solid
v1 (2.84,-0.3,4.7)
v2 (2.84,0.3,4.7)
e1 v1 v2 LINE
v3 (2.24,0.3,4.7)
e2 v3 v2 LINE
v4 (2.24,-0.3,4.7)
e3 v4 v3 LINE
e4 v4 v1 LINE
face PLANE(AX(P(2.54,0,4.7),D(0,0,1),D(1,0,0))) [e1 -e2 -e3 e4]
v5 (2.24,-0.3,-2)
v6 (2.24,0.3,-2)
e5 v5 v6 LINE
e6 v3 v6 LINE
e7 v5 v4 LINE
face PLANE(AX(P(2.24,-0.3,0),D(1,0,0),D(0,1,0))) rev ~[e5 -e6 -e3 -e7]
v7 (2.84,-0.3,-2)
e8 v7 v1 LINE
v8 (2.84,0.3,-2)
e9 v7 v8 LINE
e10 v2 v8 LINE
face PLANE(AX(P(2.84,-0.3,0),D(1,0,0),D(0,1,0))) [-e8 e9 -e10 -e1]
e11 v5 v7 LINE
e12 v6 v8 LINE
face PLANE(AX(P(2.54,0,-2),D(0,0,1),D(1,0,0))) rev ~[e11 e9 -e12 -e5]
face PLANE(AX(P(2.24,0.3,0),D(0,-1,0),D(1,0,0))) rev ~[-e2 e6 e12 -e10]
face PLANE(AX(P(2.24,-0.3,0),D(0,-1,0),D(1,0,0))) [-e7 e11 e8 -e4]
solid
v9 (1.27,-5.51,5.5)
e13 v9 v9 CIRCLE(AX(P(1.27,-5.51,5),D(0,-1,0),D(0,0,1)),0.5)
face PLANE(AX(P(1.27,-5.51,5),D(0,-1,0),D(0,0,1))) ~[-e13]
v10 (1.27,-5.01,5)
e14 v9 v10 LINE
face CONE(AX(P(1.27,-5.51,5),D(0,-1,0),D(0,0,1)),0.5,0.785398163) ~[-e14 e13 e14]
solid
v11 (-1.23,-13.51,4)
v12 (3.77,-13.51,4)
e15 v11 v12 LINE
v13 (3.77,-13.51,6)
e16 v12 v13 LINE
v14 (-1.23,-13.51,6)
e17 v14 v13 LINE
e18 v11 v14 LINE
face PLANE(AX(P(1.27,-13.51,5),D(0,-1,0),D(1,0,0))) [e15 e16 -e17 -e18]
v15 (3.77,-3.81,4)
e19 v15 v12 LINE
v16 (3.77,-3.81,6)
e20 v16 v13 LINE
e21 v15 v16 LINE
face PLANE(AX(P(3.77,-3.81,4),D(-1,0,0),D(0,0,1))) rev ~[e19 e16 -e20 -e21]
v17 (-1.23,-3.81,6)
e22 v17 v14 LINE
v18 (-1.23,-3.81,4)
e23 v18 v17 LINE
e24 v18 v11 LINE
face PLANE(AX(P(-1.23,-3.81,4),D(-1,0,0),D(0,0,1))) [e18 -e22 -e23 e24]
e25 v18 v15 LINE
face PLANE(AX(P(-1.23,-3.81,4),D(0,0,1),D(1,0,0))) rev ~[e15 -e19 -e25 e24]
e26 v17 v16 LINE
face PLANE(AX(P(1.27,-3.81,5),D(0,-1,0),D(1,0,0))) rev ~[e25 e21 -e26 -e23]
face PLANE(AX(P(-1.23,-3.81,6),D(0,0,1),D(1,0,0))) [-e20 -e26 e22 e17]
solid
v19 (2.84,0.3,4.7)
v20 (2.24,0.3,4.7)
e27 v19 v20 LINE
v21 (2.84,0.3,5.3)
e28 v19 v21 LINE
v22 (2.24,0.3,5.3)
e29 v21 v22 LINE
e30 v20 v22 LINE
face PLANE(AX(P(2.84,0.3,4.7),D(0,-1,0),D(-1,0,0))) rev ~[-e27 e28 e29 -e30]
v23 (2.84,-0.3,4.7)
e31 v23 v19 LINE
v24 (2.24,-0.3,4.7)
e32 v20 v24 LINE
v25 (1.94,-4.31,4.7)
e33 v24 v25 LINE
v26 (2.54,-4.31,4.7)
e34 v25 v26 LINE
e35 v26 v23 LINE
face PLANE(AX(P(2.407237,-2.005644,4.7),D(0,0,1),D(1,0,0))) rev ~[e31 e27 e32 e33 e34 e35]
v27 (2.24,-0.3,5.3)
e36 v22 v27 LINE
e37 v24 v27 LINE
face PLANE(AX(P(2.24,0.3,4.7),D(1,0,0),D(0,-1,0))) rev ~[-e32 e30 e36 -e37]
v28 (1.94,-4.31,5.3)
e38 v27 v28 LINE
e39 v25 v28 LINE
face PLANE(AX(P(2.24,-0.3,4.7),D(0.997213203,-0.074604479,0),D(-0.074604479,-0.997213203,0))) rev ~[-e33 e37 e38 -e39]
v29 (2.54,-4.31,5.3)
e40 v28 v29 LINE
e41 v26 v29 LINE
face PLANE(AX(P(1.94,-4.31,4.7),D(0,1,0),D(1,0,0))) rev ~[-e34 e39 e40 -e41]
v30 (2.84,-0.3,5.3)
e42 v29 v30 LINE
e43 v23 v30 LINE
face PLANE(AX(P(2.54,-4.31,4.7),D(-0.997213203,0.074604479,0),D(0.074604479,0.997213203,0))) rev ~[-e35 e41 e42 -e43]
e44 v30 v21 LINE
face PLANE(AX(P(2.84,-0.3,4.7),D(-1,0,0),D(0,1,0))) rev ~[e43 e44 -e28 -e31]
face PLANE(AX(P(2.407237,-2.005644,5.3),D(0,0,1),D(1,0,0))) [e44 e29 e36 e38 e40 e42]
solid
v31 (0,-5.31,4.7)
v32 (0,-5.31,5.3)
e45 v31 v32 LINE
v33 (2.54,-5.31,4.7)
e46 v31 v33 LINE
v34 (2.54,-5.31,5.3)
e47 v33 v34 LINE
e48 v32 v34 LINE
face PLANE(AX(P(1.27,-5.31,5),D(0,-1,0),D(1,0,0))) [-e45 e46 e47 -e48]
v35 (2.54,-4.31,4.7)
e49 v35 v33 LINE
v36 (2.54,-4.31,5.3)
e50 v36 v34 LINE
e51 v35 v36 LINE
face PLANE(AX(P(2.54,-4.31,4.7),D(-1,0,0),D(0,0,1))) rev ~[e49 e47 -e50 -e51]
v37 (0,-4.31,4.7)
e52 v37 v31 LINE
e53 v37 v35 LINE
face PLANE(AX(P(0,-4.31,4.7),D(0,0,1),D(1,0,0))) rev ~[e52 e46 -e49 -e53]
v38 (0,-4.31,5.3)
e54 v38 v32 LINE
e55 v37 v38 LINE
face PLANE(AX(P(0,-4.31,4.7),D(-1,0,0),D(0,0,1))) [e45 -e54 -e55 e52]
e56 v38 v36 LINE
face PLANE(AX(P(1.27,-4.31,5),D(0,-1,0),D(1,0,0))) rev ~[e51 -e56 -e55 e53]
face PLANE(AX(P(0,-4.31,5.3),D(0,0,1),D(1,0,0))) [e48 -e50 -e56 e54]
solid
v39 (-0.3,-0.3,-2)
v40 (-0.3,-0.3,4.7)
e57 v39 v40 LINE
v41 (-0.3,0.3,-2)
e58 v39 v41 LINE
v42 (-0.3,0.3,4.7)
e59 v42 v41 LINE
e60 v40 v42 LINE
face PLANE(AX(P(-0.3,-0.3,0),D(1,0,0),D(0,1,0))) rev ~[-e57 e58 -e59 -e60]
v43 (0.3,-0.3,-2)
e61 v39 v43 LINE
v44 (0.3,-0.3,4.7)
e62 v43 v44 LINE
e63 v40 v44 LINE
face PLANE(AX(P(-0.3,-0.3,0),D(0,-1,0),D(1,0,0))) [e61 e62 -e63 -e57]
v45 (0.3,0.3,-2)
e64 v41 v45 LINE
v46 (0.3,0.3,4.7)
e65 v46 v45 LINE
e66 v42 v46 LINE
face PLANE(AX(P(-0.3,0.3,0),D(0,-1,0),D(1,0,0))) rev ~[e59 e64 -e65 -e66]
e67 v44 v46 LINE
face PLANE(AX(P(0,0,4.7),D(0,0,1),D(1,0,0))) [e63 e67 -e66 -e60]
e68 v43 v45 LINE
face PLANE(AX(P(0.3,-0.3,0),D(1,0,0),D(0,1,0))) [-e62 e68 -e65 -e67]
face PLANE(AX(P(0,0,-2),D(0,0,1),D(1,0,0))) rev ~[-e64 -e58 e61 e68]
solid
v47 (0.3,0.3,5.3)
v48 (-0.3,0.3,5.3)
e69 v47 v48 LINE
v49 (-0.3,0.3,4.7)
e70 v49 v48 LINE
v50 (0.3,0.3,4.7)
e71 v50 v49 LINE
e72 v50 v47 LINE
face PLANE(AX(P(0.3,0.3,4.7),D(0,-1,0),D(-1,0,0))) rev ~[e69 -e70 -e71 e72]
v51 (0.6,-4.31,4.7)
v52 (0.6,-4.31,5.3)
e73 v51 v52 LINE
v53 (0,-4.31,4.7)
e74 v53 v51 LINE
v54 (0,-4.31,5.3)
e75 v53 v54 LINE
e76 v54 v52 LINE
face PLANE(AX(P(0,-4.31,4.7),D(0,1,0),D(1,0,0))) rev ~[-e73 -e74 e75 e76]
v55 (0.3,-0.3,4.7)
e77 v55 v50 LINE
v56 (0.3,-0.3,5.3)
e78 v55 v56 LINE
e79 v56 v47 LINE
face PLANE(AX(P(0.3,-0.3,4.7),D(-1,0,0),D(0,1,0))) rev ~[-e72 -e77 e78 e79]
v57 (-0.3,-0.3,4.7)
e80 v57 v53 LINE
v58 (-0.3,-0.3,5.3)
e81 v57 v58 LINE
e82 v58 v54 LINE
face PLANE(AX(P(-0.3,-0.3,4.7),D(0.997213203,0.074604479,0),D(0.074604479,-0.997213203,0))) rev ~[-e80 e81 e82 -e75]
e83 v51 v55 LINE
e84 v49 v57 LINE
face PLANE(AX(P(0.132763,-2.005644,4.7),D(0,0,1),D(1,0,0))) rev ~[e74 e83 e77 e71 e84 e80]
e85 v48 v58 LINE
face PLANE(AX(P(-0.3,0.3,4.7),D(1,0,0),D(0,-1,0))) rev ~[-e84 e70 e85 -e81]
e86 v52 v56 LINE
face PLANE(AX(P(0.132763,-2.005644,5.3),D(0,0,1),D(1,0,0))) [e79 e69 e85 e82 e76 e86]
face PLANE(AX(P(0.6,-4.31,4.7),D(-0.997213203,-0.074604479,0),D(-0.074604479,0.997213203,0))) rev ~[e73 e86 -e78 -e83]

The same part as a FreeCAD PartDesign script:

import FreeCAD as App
import Part
import Sketcher

V = App.Vector


def add_polygon(sketch, points):
    """Adds a closed chain of lines whose ends are joined by coincident constraints."""
    first, n = sketch.GeometryCount, len(points)
    for a, b in zip(points, points[1:] + points[:1]):
        sketch.addGeometry(Part.LineSegment(App.Vector(*a, 0), App.Vector(*b, 0)), False)
    for i in range(n):
        sketch.addConstraint(Sketcher.Constraint("Coincident", first + i, 2, first + (i + 1) % n, 1))

doc = App.newDocument("Part")
body = doc.addObject("PartDesign::Body", "Body")
body.AllowCompound = True

sketch1 = body.newObject("Sketcher::SketchObject", "Sketch")
sketch1.AttachmentSupport = (doc.getObject("XY_Plane"), [""])
sketch1.MapMode = "FlatFace"
add_polygon(sketch1, [(-0.3, 0.3), (-0.3, -0.3), (0.3, -0.3), (0.3, 0.3)])
add_polygon(sketch1, [(2.24, 0.3), (2.24, -0.3), (2.84, -0.3), (2.84, 0.3)])
sketch1.addConstraint([
    Sketcher.Constraint("Vertical", 0),
    Sketcher.Constraint("Horizontal", 1),
    Sketcher.Constraint("Vertical", 2),
    Sketcher.Constraint("Horizontal", 3),
    Sketcher.Constraint("Vertical", 4),
    Sketcher.Constraint("Horizontal", 5),
    Sketcher.Constraint("Vertical", 6),
    Sketcher.Constraint("Horizontal", 7),
    Sketcher.Constraint("Symmetric", 0, 2, 2, 2, -1, 1),
    Sketcher.Constraint("Horizontal", 1, 2, 4, 2),
    Sketcher.Constraint("Horizontal", 3, 2, 6, 2),
    Sketcher.Constraint("Equal", 3, 5),
    Sketcher.Constraint("Equal", 7, 0),
    Sketcher.Constraint("DistanceX", 1, 1, 1, 2, 0.6),
    Sketcher.Constraint("DistanceX", -1, 1, 4, 2, 2.24),
])
pad1 = body.newObject("PartDesign::Pad", "Pad")
pad1.Profile = sketch1
pad1.Type = "TwoLengths"
pad1.Length = 4.7
pad1.Length2 = 2
body2 = doc.addObject("PartDesign::Body", "Body001")
body2.AllowCompound = True

sketch2 = body2.newObject("Sketcher::SketchObject", "Sketch001")
sketch2.AttachmentSupport = (doc.getObject("XY_Plane001"), [""])
sketch2.MapMode = "FlatFace"
sketch2.AttachmentOffset = App.Placement(V(0, 0, 4.7), App.Rotation())
add_polygon(sketch2, [(0.3, 0.3), (-0.3, 0.3), (-0.3, -0.3), (0, -4.31), (0.6, -4.31), (0.3, -0.3)])
add_polygon(sketch2, [(2.84, 0.3), (2.24, 0.3), (2.24, -0.3), (1.94, -4.31), (2.54, -4.31), (2.84, -0.3)])
sketch2.addConstraint([
    Sketcher.Constraint("Horizontal", 0),
    Sketcher.Constraint("Vertical", 1),
    Sketcher.Constraint("Horizontal", 3),
    Sketcher.Constraint("Vertical", 5),
    Sketcher.Constraint("Horizontal", 6),
    Sketcher.Constraint("Vertical", 7),
    Sketcher.Constraint("Horizontal", 9),
    Sketcher.Constraint("Vertical", 11),
    Sketcher.Constraint("Symmetric", 0, 2, 4, 2, -1, 1),
    Sketcher.Constraint("PointOnObject", 2, 2, -2),
    Sketcher.Constraint("Parallel", 2, 4),
    Sketcher.Constraint("Parallel", 8, 10),
    Sketcher.Constraint("Horizontal", 1, 2, 4, 2),
    Sketcher.Constraint("Horizontal", 5, 2, 6, 2),
    Sketcher.Constraint("Horizontal", 4, 2, 7, 2),
    Sketcher.Constraint("Horizontal", 3, 2, 8, 2),
    Sketcher.Constraint("Horizontal", 7, 2, 10, 2),
    Sketcher.Constraint("Equal", 3, 6),
    Sketcher.Constraint("Equal", 9, 1),
    Sketcher.Constraint("Equal", 4, 8),
    Sketcher.Constraint("DistanceX", 0, 2, 0, 1, 0.6),
    Sketcher.Constraint("DistanceY", 2, 2, -1, 1, 4.31),
    Sketcher.Constraint("DistanceX", -1, 1, 6, 2, 2.24),
])
pad2 = body2.newObject("PartDesign::Pad", "Pad001")
pad2.Profile = sketch2
pad2.Length = 0.6
body3 = doc.addObject("PartDesign::Body", "Body002")

sketch3 = body3.newObject("Sketcher::SketchObject", "Sketch002")
sketch3.AttachmentSupport = (doc.getObject("XZ_Plane002"), [""])
sketch3.MapMode = "FlatFace"
sketch3.AttachmentOffset = App.Placement(V(0, 0, 4.31), App.Rotation())
add_polygon(sketch3, [(0, 5.3), (0, 4.7), (2.54, 4.7), (2.54, 5.3)])
sketch3.addConstraint([
    Sketcher.Constraint("Vertical", 0),
    Sketcher.Constraint("Horizontal", 1),
    Sketcher.Constraint("Vertical", 2),
    Sketcher.Constraint("Horizontal", 3),
    Sketcher.Constraint("PointOnObject", 0, 2, -2),
    Sketcher.Constraint("DistanceY", 0, 2, 0, 1, 0.6),
    Sketcher.Constraint("DistanceX", 1, 1, 1, 2, 2.54),
    Sketcher.Constraint("DistanceY", -1, 1, 0, 2, 4.7),
])
pad3 = body3.newObject("PartDesign::Pad", "Pad002")
pad3.Profile = sketch3
pad3.Length = 1
body4 = doc.addObject("PartDesign::Body", "Body003")

sketch4 = body4.newObject("Sketcher::SketchObject", "Sketch003")
sketch4.AttachmentSupport = (doc.getObject("XZ_Plane003"), [""])
sketch4.MapMode = "FlatFace"
sketch4.AttachmentOffset = App.Placement(V(0, 0, 3.81), App.Rotation())
add_polygon(sketch4, [(-1.23, 6), (-1.23, 4), (3.77, 4), (3.77, 6)])
sketch4.addConstraint([
    Sketcher.Constraint("Vertical", 0),
    Sketcher.Constraint("Horizontal", 1),
    Sketcher.Constraint("Vertical", 2),
    Sketcher.Constraint("Horizontal", 3),
    Sketcher.Constraint("DistanceX", 1, 1, 1, 2, 5.0),
    Sketcher.Constraint("DistanceY", 0, 2, 0, 1, 2.0),
    Sketcher.Constraint("DistanceY", -1, 1, 0, 2, 4.0),
    Sketcher.Constraint("DistanceX", 0, 2, -1, 1, 1.23),
])
pad4 = body4.newObject("PartDesign::Pad", "Pad003")
pad4.Profile = sketch4
pad4.Length = 9.7
body5 = doc.addObject("PartDesign::Body", "Body004")

sketch5 = body5.newObject("Sketcher::SketchObject", "Sketch004")
sketch5.AttachmentSupport = (doc.getObject("YZ_Plane004"), [""])
sketch5.MapMode = "FlatFace"
sketch5.AttachmentOffset = App.Placement(V(0, 0, 1.27), App.Rotation())
add_polygon(sketch5, [(-5.51, 5), (-5.01, 5), (-5.51, 5.5)])
sketch5.addGeometry(Part.LineSegment(V(-5.01, 5, 0), V(-5.51, 5, 0)), True)
sketch5.addConstraint([
    Sketcher.Constraint("Horizontal", 0),
    Sketcher.Constraint("Vertical", 2),
    Sketcher.Constraint("Horizontal", 3),
    Sketcher.Constraint("Coincident", 3, 1, 0, 2),
    Sketcher.Constraint("Vertical", 1, 2, 3, 2),
    Sketcher.Constraint("Equal", 3, 2),
    Sketcher.Constraint("DistanceX", 0, 1, 0, 2, 0.5),
    Sketcher.Constraint("DistanceY", -1, 1, 0, 2, 5.0),
    Sketcher.Constraint("DistanceX", 0, 2, -1, 1, 5.01),
])
revolution = body5.newObject("PartDesign::Revolution", "Revolution")
revolution.Profile = sketch5
revolution.ReferenceAxis = (sketch5, ["Axis0"])
revolution.Angle = 360

doc.recompute()
